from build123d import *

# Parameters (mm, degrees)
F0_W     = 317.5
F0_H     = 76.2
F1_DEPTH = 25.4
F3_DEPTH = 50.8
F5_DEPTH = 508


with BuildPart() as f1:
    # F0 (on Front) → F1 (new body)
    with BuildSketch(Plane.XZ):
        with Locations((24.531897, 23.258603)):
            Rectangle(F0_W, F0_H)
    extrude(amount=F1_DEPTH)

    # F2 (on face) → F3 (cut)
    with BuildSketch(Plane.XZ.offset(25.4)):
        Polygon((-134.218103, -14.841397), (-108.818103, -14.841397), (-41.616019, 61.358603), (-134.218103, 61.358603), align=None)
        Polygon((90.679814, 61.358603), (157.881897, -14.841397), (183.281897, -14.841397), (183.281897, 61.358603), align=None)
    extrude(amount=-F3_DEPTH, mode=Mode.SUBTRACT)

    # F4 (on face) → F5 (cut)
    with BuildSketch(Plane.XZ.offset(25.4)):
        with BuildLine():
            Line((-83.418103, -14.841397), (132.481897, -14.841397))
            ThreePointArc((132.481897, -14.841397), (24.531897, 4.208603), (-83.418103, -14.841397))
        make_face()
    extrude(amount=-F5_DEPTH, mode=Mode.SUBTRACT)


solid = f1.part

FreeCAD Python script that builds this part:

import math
import FreeCAD as App
import Part
import Sketcher
from FreeCAD import Vector
Q = App.Units.Quantity


def add_polygon(sketch, points):
    """Adds a closed chain of lines whose ends are joined by coincident constraints."""
    first, n = sketch.GeometryCount, len(points)
    for a, b in zip(points, points[1:] + points[:1]):
        sketch.addGeometry(Part.LineSegment(App.Vector(*a, 0), App.Vector(*b, 0)), False)
    for i in range(n):
        sketch.addConstraint(Sketcher.Constraint("Coincident", first + i, 2, first + (i + 1) % n, 1))

doc = App.newDocument("Part")
params = doc.addObject("Spreadsheet::Sheet", "Params")
for row, (alias, value) in enumerate([
    ("sketch1_height", "3 in"),
    ("sketch1_width", "12.5 in"),
    ("pad1_length", "1 in"),
    ("sketch2_width", "1 in"),
    ("sketch2_height", "3 in"),
    ("sketch2_length", "4 in"),
    ("pocket1_length", "2 in"),
    ("sketch3_width", "8.5 in"),
    ("pocket2_length", "20 in"),
], start=1):
    params.set(f"A{row}", alias)
    params.set(f"B{row}", "=" + value)
    params.setAlias(f"B{row}", alias)

body = doc.addObject("PartDesign::Body", "Body")

# Sketch on XZ plane
sketch1 = doc.addObject("Sketcher::SketchObject", "Sketch")
body.addObject(sketch1)
sketch1.AttachmentSupport = (doc.XZ_Plane, [""])
sketch1.MapMode = "FlatFace"
add_polygon(sketch1, [(-134, 61), (-134, -15), (183, -15), (183, 61)])  # lines 0-3
sketch1.addConstraint(Sketcher.Constraint("Vertical", 0))
sketch1.addConstraint(Sketcher.Constraint("Horizontal", 1))
sketch1.addConstraint(Sketcher.Constraint("Vertical", 2))
sketch1.addConstraint(Sketcher.Constraint("Horizontal", 3))
sketch1.addConstraint(Sketcher.Constraint("DistanceY", 0, 2, 0, 1, Q("3 in")))
sketch1.addConstraint(Sketcher.Constraint("DistanceX", 1, 1, 1, 2, Q("12.5 in")))
sketch1.addConstraint(Sketcher.Constraint("DistanceX", 0, 2, -1, 1, Q("134.218103 mm")))
sketch1.addConstraint(Sketcher.Constraint("DistanceY", 0, 2, -1, 1, Q("14.841397 mm")))
sketch1.setExpression("Constraints[8]", "Params.sketch1_height")
sketch1.setExpression("Constraints[9]", "Params.sketch1_width")
pad1 = doc.addObject("PartDesign::Pad", "Pad")
body.addObject(pad1)
pad1.Profile = sketch1
pad1.setExpression("Length", "Params.pad1_length")

# Sketch on XZ plane
sketch2 = doc.addObject("Sketcher::SketchObject", "Sketch001")
body.addObject(sketch2)
sketch2.AttachmentSupport = (doc.XZ_Plane, [""])
sketch2.MapMode = "FlatFace"
sketch2.AttachmentOffset = App.Placement(Vector(0, 0, 1 * 25.4), App.Rotation())
add_polygon(sketch2, [(-134, -15), (-109, -15), (-42, 61), (-134, 61)])  # lines 0-3
add_polygon(sketch2, [(91, 61), (158, -15), (183, -15), (183, 61)])  # lines 4-7
sketch2.addConstraint(Sketcher.Constraint("Horizontal", 0))
sketch2.addConstraint(Sketcher.Constraint("Horizontal", 2))
sketch2.addConstraint(Sketcher.Constraint("Vertical", 3))
sketch2.addConstraint(Sketcher.Constraint("Horizontal", 5))
sketch2.addConstraint(Sketcher.Constraint("Vertical", 6))
sketch2.addConstraint(Sketcher.Constraint("Horizontal", 7))
sketch2.addConstraint(Sketcher.Constraint("Horizontal", 3, 2, 4, 2))
sketch2.addConstraint(Sketcher.Constraint("Horizontal", 2, 2, 6, 2))
sketch2.addConstraint(Sketcher.Constraint("Equal", 0, 5))
sketch2.addConstraint(Sketcher.Constraint("Equal", 2, 7))
sketch2.addConstraint(Sketcher.Constraint("DistanceX", 0, 1, 0, 2, Q("1 in")))
sketch2.addConstraint(Sketcher.Constraint("DistanceY", 3, 2, 3, 1, Q("3 in")))
sketch2.addConstraint(Sketcher.Constraint("Distance", 1, Q("4 in")))
sketch2.addConstraint(Sketcher.Constraint("DistanceX", 0, 2, 4, 2, Q("10.5 in")))
sketch2.addConstraint(Sketcher.Constraint("DistanceX", 1, 2, -1, 1, Q("41.616019 mm")))
sketch2.addConstraint(Sketcher.Constraint("DistanceY", 0, 2, -1, 1, Q("14.841397 mm")))
sketch2.setExpression("Constraints[18]", "Params.sketch2_width")
sketch2.setExpression("Constraints[19]", "Params.sketch2_height")
sketch2.setExpression("Constraints[20]", "Params.sketch2_length")
pocket1 = doc.addObject("PartDesign::Pocket", "Pocket")
body.addObject(pocket1)
pocket1.Profile = sketch2
pocket1.setExpression("Length", "Params.pocket1_length")

# Sketch on XZ plane
sketch3 = doc.addObject("Sketcher::SketchObject", "Sketch002")
body.addObject(sketch3)
sketch3.AttachmentSupport = (doc.XZ_Plane, [""])
sketch3.MapMode = "FlatFace"
sketch3.AttachmentOffset = App.Placement(Vector(0, 0, 1 * 25.4), App.Rotation())
sketch3.addGeometry(Part.LineSegment(Vector(-83, -15, 0), Vector(132, -15, 0)), False)
sketch3.addGeometry(Part.ArcOfCircle(Part.Circle(Vector(25, -311, 0), Vector(0, 0, 1), 315), math.radians(70), math.radians(110)), False)
sketch3.addConstraint(Sketcher.Constraint("Coincident", 0, 1, 1, 2))
sketch3.addConstraint(Sketcher.Constraint("Coincident", 1, 1, 0, 2))
sketch3.addConstraint(Sketcher.Constraint("Horizontal", 0))
sketch3.addConstraint(Sketcher.Constraint("DistanceX", 0, 1, 0, 2, Q("8.5 in")))
sketch3.addConstraint(Sketcher.Constraint("Radius", 1, Q("315.383333 mm")))
sketch3.addConstraint(Sketcher.Constraint("DistanceY", 1, 3, -1, 1, Q("311.17473 mm")))
sketch3.addConstraint(Sketcher.Constraint("DistanceX", -1, 1, 1, 3, Q("24.531897 mm")))
sketch3.setExpression("Constraints[3]", "Params.sketch3_width")
pocket2 = doc.addObject("PartDesign::Pocket", "Pocket001")
body.addObject(pocket2)
pocket2.Profile = sketch3
pocket2.setExpression("Length", "Params.pocket2_length")

doc.recompute()
